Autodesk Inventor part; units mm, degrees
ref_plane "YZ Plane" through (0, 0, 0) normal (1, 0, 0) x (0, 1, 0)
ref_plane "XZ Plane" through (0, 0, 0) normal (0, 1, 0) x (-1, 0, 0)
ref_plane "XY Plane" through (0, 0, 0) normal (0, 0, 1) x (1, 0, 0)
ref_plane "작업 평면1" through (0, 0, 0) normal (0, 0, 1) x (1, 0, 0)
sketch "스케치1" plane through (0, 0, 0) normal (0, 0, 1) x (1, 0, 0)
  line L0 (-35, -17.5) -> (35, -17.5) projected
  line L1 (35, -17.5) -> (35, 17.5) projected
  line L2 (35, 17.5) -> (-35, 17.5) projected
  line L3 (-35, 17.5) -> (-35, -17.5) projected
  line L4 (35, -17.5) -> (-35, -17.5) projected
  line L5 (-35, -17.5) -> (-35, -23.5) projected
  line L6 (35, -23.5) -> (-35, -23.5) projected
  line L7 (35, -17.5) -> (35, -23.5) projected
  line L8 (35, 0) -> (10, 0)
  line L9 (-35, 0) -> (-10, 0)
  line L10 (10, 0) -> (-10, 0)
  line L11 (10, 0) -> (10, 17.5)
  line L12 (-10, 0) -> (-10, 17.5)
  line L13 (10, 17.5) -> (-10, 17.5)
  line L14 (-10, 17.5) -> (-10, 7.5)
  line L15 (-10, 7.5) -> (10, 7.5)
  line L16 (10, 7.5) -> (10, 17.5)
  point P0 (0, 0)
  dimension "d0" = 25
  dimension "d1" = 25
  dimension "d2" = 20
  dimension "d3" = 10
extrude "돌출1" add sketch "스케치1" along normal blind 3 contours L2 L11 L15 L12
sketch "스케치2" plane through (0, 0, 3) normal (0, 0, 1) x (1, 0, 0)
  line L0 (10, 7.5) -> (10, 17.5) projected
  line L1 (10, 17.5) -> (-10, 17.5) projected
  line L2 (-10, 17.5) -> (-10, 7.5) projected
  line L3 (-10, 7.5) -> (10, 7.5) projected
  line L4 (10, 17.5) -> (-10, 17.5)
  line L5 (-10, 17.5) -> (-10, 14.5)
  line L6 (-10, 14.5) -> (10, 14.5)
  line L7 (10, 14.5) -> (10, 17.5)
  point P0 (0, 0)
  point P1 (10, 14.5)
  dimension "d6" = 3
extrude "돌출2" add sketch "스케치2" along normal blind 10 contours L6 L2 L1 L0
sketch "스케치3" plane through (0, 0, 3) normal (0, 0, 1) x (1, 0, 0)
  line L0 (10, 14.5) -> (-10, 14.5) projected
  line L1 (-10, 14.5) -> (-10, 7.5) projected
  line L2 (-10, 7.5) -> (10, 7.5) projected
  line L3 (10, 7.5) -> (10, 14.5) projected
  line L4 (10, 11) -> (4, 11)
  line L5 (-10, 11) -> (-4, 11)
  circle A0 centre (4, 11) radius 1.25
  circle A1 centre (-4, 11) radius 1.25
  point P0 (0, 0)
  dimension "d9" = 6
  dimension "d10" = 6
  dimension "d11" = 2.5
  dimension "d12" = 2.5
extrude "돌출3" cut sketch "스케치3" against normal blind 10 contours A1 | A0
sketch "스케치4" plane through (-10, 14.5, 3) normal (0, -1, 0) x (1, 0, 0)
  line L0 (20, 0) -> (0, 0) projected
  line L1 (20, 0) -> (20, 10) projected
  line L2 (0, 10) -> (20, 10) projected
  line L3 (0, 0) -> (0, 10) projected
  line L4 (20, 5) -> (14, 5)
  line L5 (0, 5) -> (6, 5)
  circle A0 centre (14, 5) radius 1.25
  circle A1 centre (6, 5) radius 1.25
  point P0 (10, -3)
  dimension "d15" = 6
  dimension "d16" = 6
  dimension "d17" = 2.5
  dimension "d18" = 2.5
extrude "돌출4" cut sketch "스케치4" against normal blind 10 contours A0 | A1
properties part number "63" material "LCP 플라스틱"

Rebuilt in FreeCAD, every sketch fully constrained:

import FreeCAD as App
import Part
import Sketcher
from FreeCAD import Vector


def add_polygon(sketch, points):
    """Adds a closed chain of lines whose ends are joined by coincident constraints."""
    first, n = sketch.GeometryCount, len(points)
    for a, b in zip(points, points[1:] + points[:1]):
        sketch.addGeometry(Part.LineSegment(App.Vector(*a, 0), App.Vector(*b, 0)), False)
    for i in range(n):
        sketch.addConstraint(Sketcher.Constraint("Coincident", first + i, 2, first + (i + 1) % n, 1))

doc = App.newDocument("Part")
body = doc.addObject("PartDesign::Body", "Body")

sketch1 = body.newObject("Sketcher::SketchObject", "Sketch")
sketch1.AttachmentSupport = (doc.getObject("XY_Plane"), [""])
sketch1.MapMode = "FlatFace"
add_polygon(sketch1, [(10, 18), (-10, 18), (-10, 8), (10, 8)])
sketch1.addConstraint(Sketcher.Constraint("Horizontal", 0))
sketch1.addConstraint(Sketcher.Constraint("Vertical", 1))
sketch1.addConstraint(Sketcher.Constraint("Horizontal", 2))
sketch1.addConstraint(Sketcher.Constraint("Vertical", 3))
sketch1.addConstraint(Sketcher.Constraint("DistanceX", 0, 2, 0, 1, 20.0))
sketch1.addConstraint(Sketcher.Constraint("DistanceY", 1, 2, 1, 1, 10.0))
sketch1.addConstraint(Sketcher.Constraint("DistanceX", 0, 2, -1, 1, 10.0))
sketch1.addConstraint(Sketcher.Constraint("DistanceY", -1, 1, 0, 2, 17.5))
pad1 = body.newObject("PartDesign::Pad", "Pad")
pad1.Profile = sketch1
pad1.Length = 3

sketch2 = body.newObject("Sketcher::SketchObject", "Sketch001")
sketch2.AttachmentSupport = (doc.getObject("XY_Plane"), [""])
sketch2.MapMode = "FlatFace"
sketch2.AttachmentOffset = App.Placement(Vector(0, 0, 3), App.Rotation())
add_polygon(sketch2, [(-10, 14.5), (10, 14.5), (10, 17.5), (-10, 17.5)])
sketch2.addConstraint(Sketcher.Constraint("Horizontal", 0))
sketch2.addConstraint(Sketcher.Constraint("Vertical", 1))
sketch2.addConstraint(Sketcher.Constraint("Horizontal", 2))
sketch2.addConstraint(Sketcher.Constraint("Vertical", 3))
sketch2.addConstraint(Sketcher.Constraint("DistanceY", 1, 1, 1, 2, 3.0))
sketch2.addConstraint(Sketcher.Constraint("DistanceX", 0, 1, 0, 2, 20.0))
sketch2.addConstraint(Sketcher.Constraint("DistanceX", -1, 1, 0, 2, 10.0))
sketch2.addConstraint(Sketcher.Constraint("DistanceY", -1, 1, 0, 2, 14.5))
pad2 = body.newObject("PartDesign::Pad", "Pad001")
pad2.Profile = sketch2
pad2.Length = 10

sketch3 = body.newObject("Sketcher::SketchObject", "Sketch002")
sketch3.AttachmentSupport = (doc.getObject("XY_Plane"), [""])
sketch3.MapMode = "FlatFace"
sketch3.AttachmentOffset = App.Placement(Vector(0, 0, 3), App.Rotation())
sketch3.addGeometry(Part.Circle(Vector(-4, 11, 0), Vector(0, 0, 1), 1.2), False)
sketch3.addGeometry(Part.Circle(Vector(4, 11, 0), Vector(0, 0, 1), 1.2), False)
sketch3.addConstraint(Sketcher.Constraint("Equal", 0, 1))
sketch3.addConstraint(Sketcher.Constraint("Symmetric", 0, 3, 1, 3, -2))
sketch3.addConstraint(Sketcher.Constraint("Diameter", 0, 2.5))
sketch3.addConstraint(Sketcher.Constraint("DistanceX", 0, 3, -1, 1, 4.0))
sketch3.addConstraint(Sketcher.Constraint("DistanceY", -1, 1, 0, 3, 11.0))
pocket1 = body.newObject("PartDesign::Pocket", "Pocket")
pocket1.Profile = sketch3
pocket1.Length = 10

sketch4 = body.newObject("Sketcher::SketchObject", "Sketch003")
sketch4.AttachmentSupport = (doc.getObject("XZ_Plane"), [""])
sketch4.MapMode = "FlatFace"
sketch4.AttachmentOffset = App.Placement(Vector(0, 0, -14.5), App.Rotation())
sketch4.addGeometry(Part.Circle(Vector(4, 8, 0), Vector(0, 0, 1), 1.2), False)
sketch4.addGeometry(Part.Circle(Vector(-4, 8, 0), Vector(0, 0, 1), 1.2), False)
sketch4.addConstraint(Sketcher.Constraint("Equal", 0, 1))
sketch4.addConstraint(Sketcher.Constraint("Symmetric", 0, 3, 1, 3, -2))
sketch4.addConstraint(Sketcher.Constraint("Diameter", 0, 2.5))
sketch4.addConstraint(Sketcher.Constraint("DistanceX", -1, 1, 0, 3, 4.0))
sketch4.addConstraint(Sketcher.Constraint("DistanceY", -1, 1, 0, 3, 8.0))
pocket2 = body.newObject("PartDesign::Pocket", "Pocket001")
pocket2.Profile = sketch4
pocket2.Length = 10

doc.recompute()
